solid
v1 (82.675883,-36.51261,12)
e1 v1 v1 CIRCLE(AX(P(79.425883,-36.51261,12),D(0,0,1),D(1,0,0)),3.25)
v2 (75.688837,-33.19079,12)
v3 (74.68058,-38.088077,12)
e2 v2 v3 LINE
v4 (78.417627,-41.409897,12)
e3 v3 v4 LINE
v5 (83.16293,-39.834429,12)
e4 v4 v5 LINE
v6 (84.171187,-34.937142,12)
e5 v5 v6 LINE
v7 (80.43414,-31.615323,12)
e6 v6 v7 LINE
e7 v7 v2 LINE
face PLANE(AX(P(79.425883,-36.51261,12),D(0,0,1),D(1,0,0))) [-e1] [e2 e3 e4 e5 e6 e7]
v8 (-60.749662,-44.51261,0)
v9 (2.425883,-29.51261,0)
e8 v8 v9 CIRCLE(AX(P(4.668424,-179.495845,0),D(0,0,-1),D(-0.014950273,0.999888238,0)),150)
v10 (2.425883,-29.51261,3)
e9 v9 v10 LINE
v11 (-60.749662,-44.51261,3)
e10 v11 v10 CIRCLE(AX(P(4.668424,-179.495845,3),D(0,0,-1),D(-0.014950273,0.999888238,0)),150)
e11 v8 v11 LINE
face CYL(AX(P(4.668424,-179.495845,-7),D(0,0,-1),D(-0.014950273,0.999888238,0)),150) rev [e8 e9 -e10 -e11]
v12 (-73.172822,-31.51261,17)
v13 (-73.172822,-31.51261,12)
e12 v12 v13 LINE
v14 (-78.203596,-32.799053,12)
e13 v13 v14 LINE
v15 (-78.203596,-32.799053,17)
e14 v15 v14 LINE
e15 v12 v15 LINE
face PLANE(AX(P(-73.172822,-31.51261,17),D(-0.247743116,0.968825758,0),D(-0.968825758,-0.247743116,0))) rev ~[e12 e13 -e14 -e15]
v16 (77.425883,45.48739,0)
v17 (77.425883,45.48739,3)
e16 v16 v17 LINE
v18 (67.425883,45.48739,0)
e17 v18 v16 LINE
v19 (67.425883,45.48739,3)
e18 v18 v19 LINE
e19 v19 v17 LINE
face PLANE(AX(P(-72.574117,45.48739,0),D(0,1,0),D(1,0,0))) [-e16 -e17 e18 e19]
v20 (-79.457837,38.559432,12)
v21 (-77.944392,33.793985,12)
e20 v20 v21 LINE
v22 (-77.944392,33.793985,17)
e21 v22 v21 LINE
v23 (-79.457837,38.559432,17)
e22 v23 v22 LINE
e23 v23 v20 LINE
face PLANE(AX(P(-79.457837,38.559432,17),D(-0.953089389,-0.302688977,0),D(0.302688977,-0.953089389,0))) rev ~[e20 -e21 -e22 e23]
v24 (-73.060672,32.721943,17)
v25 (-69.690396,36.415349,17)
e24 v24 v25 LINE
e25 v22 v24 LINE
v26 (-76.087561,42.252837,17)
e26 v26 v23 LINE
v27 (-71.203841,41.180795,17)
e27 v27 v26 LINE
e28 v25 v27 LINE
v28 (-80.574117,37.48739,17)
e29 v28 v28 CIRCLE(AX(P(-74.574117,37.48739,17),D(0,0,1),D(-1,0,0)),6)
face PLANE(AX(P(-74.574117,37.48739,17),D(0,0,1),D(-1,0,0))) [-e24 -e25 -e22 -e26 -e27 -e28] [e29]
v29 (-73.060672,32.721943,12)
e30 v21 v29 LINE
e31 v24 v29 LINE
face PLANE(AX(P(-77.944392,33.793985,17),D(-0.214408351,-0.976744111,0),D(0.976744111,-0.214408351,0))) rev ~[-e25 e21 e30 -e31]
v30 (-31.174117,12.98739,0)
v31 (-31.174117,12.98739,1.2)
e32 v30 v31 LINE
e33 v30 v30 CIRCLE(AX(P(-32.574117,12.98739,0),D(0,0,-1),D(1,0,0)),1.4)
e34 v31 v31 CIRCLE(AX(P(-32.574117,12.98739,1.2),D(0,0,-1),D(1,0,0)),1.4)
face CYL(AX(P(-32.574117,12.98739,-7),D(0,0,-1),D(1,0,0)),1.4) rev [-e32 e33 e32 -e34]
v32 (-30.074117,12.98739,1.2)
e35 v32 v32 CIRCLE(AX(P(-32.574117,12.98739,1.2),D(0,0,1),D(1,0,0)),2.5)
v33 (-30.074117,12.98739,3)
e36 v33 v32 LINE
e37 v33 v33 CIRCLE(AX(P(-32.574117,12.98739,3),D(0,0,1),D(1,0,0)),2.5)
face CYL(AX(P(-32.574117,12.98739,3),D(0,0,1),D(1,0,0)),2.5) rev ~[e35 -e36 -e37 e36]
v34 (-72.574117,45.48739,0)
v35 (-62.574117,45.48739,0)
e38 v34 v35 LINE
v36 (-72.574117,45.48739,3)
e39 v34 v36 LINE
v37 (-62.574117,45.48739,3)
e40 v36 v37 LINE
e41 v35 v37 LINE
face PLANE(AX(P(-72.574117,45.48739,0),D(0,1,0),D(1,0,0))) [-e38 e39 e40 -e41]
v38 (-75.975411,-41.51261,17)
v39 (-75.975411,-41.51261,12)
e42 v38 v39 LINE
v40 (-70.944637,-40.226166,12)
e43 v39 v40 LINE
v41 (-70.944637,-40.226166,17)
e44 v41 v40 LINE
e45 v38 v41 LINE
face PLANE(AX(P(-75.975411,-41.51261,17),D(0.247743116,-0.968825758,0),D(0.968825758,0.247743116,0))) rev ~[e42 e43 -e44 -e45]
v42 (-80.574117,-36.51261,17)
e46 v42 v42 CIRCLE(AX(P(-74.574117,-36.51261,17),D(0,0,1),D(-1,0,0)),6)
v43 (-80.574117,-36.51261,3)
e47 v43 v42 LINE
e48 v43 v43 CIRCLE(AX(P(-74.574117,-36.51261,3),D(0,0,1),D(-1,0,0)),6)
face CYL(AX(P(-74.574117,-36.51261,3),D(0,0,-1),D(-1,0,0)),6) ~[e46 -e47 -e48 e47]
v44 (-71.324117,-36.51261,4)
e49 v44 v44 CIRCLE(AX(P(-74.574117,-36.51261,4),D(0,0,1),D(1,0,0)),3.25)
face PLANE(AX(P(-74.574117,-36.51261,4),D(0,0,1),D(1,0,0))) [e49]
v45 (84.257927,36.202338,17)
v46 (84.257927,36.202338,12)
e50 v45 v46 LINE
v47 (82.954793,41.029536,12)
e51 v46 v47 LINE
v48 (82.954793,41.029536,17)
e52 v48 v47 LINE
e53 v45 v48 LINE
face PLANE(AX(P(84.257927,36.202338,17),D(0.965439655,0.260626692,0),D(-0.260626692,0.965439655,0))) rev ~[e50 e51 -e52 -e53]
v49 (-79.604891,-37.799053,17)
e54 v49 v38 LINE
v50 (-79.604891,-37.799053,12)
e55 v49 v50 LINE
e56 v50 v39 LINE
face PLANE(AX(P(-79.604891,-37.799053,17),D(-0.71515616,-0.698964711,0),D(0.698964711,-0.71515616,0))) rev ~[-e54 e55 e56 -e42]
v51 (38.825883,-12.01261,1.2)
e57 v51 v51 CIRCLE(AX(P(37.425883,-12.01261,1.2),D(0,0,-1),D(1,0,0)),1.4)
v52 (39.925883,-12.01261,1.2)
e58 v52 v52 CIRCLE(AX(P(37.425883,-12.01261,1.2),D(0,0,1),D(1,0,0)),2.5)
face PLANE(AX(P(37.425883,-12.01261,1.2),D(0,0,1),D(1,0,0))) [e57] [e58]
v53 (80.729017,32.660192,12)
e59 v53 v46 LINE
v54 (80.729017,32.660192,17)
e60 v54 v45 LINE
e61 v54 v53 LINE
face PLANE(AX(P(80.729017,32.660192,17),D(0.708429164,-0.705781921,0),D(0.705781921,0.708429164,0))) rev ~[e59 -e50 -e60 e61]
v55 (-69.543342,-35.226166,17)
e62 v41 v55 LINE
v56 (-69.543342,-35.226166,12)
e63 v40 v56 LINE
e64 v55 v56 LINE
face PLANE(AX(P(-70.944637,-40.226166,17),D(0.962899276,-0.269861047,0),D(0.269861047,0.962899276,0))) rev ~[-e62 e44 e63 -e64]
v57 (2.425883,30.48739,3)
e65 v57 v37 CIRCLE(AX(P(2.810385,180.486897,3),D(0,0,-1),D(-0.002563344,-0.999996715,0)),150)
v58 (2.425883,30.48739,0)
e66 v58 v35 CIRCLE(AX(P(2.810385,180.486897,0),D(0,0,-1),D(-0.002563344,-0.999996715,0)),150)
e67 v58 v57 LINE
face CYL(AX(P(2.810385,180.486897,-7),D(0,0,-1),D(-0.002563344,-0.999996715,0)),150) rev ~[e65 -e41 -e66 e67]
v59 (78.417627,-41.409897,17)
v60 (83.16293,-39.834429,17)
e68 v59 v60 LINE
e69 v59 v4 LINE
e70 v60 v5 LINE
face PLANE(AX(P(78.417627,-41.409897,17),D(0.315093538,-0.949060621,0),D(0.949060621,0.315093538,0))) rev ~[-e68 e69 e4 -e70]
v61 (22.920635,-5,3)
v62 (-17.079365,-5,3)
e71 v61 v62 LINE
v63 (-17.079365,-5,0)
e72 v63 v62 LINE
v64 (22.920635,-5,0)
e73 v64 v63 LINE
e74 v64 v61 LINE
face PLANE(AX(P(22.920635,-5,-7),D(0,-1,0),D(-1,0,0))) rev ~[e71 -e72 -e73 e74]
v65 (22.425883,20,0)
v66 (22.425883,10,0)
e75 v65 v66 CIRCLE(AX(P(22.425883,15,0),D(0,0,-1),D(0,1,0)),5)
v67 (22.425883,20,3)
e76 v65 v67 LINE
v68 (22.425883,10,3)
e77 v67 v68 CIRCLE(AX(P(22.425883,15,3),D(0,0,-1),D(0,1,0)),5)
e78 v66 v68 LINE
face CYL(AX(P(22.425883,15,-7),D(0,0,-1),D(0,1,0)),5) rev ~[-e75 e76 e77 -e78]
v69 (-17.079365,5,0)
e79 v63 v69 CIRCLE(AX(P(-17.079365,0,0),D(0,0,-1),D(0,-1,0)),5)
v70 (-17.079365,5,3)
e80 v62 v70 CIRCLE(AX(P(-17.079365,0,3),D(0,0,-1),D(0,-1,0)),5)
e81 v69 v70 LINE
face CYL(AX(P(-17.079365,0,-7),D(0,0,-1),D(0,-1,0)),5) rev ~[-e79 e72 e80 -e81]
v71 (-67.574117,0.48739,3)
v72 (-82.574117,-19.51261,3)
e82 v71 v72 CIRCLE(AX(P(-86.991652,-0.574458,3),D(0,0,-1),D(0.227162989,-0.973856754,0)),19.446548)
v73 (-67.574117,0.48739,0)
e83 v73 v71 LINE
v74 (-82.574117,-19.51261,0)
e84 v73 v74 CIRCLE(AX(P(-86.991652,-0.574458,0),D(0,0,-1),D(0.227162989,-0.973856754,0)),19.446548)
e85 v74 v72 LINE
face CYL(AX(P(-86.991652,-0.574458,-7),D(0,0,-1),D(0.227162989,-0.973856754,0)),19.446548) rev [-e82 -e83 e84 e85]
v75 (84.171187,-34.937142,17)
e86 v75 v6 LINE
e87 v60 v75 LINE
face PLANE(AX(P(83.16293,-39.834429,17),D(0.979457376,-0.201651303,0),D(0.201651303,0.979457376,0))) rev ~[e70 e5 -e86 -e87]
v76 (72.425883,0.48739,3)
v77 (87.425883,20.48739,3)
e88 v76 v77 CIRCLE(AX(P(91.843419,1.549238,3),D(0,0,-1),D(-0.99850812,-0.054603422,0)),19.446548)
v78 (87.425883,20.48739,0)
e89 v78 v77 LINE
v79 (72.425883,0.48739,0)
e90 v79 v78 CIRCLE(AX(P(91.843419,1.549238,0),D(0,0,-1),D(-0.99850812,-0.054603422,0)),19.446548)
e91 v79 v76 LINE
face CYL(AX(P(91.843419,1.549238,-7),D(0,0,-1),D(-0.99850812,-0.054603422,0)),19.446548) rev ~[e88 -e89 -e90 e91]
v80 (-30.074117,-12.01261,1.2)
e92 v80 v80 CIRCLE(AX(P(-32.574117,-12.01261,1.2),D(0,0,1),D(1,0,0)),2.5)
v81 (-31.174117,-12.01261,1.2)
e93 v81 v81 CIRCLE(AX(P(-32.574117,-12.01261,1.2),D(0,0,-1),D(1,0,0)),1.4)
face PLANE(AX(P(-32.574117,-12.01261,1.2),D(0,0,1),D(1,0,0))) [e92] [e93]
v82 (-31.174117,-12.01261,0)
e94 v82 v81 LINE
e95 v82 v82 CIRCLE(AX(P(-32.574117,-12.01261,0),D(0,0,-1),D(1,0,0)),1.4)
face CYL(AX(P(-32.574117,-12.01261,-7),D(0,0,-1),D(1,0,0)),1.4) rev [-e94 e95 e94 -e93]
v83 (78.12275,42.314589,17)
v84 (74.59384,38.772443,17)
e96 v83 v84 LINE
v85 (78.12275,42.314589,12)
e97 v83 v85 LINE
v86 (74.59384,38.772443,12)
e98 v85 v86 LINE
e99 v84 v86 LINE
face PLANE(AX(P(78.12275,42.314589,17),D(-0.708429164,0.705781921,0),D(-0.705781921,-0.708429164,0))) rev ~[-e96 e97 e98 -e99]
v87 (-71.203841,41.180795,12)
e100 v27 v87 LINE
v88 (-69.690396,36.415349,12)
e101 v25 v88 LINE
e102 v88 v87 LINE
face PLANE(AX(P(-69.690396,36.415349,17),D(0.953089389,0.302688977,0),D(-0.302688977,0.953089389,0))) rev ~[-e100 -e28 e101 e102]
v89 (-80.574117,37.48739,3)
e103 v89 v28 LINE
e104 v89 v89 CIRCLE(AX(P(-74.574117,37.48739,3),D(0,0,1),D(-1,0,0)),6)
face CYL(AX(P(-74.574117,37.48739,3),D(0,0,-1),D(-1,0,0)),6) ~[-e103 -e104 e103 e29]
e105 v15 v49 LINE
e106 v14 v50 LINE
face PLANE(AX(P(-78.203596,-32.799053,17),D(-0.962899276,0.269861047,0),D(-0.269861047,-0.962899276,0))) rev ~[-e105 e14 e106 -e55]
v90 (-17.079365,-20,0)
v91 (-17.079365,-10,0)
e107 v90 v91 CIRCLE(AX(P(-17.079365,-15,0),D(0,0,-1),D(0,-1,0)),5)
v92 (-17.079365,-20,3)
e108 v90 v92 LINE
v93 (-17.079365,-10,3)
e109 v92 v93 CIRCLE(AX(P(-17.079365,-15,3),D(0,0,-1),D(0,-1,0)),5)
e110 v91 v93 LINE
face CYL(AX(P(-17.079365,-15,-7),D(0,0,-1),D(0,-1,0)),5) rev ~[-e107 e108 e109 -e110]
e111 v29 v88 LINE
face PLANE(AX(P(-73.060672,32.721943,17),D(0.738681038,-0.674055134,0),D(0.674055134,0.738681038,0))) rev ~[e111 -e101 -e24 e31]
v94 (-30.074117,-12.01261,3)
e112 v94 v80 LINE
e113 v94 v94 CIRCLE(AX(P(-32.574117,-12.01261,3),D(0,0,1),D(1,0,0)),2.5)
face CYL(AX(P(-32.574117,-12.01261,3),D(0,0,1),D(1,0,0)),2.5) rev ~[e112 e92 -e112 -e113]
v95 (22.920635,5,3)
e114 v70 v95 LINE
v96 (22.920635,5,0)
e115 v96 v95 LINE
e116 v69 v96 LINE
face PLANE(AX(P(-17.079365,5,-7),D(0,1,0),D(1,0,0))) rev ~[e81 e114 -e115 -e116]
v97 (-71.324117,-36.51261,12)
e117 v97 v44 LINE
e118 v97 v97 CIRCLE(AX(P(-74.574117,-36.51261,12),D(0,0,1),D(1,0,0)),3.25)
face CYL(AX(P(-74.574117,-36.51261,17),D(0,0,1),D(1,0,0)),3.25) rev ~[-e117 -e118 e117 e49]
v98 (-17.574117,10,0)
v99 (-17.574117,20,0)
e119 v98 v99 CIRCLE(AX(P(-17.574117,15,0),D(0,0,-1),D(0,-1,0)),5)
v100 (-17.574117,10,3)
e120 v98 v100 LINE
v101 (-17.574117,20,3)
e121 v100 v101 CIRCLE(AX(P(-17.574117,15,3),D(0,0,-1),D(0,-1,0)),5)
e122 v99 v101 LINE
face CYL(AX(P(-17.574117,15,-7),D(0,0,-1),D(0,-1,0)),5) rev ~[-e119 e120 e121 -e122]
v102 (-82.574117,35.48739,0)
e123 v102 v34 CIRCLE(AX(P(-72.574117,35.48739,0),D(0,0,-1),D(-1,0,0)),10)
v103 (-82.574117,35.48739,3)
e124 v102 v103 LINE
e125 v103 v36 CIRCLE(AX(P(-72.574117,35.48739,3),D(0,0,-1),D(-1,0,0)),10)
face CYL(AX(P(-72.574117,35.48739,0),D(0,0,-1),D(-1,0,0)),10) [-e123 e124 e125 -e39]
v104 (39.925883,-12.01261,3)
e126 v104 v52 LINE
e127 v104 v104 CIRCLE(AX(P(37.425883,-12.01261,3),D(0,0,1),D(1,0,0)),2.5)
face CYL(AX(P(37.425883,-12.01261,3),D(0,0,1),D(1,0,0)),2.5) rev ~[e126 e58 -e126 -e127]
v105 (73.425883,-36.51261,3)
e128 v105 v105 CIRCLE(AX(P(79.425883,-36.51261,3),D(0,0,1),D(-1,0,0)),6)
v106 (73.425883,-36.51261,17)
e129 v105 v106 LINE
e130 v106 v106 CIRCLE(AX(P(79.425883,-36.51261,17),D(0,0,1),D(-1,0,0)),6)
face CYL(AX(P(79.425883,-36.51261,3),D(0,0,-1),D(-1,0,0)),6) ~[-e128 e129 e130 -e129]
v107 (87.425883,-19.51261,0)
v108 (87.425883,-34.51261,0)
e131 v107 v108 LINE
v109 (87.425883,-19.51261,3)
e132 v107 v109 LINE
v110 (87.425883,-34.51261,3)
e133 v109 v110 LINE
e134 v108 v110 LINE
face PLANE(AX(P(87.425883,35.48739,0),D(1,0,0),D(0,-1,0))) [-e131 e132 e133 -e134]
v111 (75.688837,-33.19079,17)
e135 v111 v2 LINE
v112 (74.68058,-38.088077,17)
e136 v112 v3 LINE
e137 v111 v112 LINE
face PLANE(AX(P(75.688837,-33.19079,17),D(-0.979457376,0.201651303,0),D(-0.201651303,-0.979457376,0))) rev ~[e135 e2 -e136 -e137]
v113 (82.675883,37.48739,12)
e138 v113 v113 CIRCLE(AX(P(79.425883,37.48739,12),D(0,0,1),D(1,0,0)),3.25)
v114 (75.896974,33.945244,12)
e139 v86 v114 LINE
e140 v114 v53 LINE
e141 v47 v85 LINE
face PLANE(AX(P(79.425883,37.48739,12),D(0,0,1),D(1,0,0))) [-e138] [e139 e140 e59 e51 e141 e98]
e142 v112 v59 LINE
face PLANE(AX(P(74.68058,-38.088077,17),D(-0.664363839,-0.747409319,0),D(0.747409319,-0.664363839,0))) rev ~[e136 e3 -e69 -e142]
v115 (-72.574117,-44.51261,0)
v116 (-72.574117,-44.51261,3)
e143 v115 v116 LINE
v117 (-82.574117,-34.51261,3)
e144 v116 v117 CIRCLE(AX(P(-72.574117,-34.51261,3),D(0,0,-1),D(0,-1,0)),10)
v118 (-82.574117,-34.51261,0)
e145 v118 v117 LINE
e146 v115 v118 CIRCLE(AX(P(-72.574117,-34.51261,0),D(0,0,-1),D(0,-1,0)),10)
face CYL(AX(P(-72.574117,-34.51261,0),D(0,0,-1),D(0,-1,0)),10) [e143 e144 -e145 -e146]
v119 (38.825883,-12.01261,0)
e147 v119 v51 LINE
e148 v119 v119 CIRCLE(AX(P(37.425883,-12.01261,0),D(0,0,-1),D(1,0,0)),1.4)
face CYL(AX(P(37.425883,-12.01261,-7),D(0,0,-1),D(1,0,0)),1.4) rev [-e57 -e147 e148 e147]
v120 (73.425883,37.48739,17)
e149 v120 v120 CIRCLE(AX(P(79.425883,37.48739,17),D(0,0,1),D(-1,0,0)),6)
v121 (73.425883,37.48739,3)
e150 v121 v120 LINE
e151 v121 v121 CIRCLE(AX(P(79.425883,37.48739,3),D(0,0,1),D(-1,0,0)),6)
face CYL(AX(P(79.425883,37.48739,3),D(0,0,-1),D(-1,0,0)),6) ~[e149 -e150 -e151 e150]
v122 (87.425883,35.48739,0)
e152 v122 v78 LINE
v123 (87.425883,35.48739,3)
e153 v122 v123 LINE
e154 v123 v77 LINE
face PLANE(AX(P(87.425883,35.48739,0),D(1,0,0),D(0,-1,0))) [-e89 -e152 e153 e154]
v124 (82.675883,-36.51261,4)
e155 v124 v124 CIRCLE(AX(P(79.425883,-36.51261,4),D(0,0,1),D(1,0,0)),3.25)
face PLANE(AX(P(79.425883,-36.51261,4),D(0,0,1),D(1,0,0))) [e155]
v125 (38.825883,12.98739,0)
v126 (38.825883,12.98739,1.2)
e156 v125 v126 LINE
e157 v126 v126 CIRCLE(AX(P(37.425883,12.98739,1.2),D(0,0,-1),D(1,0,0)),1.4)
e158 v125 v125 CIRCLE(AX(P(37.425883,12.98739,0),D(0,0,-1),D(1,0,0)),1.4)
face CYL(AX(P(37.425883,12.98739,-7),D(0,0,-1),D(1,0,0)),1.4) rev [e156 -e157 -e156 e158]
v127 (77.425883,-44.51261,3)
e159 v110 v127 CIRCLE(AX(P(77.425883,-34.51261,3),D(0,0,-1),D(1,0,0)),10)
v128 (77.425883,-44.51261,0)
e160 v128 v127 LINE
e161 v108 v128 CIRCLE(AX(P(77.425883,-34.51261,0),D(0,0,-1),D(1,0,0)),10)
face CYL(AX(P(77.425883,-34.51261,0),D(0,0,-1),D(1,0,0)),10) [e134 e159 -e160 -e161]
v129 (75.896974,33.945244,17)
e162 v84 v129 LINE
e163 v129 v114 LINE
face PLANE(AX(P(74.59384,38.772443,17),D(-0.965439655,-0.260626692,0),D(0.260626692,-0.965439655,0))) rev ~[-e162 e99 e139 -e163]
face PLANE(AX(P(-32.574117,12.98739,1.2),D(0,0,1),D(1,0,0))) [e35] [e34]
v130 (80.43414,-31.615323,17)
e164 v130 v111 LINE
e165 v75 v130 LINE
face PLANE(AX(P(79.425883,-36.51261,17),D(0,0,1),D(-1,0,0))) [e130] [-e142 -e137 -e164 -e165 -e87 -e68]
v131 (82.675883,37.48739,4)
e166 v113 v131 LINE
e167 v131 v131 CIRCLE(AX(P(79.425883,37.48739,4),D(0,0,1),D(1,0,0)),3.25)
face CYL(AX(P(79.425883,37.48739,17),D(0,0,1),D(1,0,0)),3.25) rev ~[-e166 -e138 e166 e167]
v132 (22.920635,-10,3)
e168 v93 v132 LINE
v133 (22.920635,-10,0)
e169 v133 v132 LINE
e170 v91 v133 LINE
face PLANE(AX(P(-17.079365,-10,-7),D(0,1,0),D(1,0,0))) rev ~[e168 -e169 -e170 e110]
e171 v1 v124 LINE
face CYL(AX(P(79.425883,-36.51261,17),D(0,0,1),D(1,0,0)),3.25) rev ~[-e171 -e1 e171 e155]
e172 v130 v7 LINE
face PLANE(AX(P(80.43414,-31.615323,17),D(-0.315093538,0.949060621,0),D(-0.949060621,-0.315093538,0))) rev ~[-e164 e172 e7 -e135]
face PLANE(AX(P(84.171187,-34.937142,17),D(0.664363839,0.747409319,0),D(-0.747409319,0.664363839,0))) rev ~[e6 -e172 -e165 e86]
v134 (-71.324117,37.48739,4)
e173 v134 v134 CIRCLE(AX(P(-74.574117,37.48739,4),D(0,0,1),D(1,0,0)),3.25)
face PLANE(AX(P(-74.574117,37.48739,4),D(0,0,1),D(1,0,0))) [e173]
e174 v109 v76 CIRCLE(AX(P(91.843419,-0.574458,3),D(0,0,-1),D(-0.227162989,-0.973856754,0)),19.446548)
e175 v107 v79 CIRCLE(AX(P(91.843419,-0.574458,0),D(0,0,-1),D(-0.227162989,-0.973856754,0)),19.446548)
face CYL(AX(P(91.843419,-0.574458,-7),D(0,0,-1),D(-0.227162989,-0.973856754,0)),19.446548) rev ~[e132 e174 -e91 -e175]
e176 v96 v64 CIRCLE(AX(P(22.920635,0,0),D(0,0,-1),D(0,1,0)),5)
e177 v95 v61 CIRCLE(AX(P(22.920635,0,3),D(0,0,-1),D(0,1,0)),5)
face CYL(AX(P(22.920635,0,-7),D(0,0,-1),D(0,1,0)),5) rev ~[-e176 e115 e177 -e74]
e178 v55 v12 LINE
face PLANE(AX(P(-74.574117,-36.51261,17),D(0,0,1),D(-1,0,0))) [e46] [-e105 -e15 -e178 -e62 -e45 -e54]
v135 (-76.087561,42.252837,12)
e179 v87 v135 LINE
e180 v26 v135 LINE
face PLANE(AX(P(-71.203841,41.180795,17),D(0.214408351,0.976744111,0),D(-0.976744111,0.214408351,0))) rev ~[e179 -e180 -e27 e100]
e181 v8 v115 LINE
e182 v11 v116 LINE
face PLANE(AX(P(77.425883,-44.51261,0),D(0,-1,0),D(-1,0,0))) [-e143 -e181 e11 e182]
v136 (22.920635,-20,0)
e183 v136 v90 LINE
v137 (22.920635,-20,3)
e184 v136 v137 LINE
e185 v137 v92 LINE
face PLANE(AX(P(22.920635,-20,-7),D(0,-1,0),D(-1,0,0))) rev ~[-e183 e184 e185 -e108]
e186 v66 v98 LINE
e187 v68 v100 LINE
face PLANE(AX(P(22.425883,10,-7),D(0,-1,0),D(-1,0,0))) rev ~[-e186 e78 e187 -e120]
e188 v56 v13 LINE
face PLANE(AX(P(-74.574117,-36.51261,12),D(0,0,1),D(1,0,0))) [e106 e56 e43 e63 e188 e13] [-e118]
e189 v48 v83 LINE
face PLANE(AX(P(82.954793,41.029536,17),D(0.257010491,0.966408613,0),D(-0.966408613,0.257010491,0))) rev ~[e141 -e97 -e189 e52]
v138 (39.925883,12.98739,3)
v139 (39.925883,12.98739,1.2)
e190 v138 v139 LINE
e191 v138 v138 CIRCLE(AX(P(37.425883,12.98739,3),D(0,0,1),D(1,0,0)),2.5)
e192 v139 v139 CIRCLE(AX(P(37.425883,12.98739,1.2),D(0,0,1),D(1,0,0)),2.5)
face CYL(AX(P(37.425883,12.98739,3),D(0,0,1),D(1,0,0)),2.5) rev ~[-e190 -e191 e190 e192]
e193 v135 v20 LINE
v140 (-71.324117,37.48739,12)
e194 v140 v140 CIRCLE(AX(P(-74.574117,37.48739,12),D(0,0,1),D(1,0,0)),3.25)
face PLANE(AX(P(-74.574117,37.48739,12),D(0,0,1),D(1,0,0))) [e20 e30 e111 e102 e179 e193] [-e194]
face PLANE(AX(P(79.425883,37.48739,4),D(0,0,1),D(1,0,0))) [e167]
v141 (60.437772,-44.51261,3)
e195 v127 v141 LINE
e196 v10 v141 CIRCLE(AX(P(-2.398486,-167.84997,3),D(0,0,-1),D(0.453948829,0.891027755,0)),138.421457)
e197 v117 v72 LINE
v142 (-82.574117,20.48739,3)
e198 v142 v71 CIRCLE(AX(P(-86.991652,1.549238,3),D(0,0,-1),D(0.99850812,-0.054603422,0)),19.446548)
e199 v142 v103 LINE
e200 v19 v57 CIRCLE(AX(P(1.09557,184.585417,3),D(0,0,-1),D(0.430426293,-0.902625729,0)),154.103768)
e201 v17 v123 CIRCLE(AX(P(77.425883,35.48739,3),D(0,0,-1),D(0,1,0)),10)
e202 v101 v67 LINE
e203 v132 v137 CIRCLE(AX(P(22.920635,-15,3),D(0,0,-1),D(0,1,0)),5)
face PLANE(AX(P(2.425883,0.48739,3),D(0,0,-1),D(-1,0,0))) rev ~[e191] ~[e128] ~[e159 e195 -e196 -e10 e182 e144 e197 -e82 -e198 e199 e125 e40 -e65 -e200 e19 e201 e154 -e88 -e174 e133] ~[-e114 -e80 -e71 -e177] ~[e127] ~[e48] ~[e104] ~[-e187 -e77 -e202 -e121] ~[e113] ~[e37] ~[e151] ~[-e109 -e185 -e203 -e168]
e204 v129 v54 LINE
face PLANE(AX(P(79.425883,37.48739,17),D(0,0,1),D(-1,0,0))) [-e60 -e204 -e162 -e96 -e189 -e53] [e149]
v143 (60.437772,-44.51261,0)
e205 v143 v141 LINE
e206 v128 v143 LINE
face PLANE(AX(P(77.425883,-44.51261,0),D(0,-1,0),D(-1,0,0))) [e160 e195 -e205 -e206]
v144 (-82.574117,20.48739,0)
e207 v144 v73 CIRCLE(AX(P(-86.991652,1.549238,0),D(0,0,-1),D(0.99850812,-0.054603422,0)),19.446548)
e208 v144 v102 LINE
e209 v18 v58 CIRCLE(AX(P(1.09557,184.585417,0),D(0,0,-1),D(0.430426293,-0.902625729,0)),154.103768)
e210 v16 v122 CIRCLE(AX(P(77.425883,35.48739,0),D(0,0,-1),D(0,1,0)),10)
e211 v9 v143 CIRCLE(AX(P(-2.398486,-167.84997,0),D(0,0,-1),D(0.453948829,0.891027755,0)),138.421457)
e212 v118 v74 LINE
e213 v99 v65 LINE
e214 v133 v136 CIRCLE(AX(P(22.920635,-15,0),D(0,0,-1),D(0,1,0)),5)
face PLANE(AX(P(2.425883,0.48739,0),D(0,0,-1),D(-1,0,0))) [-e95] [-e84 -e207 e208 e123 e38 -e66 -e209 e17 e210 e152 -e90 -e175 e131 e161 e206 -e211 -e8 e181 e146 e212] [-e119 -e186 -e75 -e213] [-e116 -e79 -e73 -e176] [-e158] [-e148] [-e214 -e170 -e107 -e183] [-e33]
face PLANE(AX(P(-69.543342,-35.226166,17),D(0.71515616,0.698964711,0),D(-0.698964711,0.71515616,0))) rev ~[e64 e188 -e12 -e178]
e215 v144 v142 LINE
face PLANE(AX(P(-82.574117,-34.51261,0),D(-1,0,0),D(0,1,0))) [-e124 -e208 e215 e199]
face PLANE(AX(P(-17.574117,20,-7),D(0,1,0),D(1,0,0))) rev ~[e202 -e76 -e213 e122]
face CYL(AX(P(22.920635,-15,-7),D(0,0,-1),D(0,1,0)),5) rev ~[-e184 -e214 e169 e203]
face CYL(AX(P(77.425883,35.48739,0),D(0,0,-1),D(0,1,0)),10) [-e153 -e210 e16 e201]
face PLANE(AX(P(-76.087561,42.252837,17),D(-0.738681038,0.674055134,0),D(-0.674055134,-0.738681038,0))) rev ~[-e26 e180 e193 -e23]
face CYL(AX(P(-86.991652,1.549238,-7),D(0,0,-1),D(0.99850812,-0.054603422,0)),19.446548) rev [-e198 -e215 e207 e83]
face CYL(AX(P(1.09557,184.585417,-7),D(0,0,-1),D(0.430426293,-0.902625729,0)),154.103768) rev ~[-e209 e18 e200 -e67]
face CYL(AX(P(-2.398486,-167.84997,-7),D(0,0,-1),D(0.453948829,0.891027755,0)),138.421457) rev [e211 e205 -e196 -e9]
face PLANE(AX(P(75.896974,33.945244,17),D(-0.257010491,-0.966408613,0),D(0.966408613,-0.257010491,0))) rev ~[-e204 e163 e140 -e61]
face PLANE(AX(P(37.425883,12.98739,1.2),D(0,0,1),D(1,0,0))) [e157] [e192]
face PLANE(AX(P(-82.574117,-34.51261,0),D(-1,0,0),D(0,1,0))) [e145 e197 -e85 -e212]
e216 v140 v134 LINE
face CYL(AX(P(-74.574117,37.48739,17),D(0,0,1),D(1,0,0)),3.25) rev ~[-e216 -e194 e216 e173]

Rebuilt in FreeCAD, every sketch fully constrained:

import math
import FreeCAD as App
import Part
import Sketcher
Q = App.Units.Quantity

doc = App.newDocument("Part")
body = doc.addObject("PartDesign::Body", "Body")

# Sketch on XY plane
sketch1 = body.newObject("Sketcher::SketchObject", "Sketch")
sketch1.AttachmentSupport = (doc.getObject("XY_Plane"), [""])
sketch1.MapMode = "FlatFace"
sketch1.addGeometry([
    Part.LineSegment(App.Vector(77.425883, 45.48739, 0), App.Vector(-72.574117, 45.48739, 0)),  # 0
    Part.ArcOfCircle(Part.Circle(App.Vector(-72.574117, 35.48739, 0), App.Vector(0, 0, 1), 10), math.radians(90), math.radians(180)),  # 1
    Part.LineSegment(App.Vector(-82.574117, 35.48739, 0), App.Vector(-82.574117, -34.51261, 0)),  # 2
    Part.ArcOfCircle(Part.Circle(App.Vector(-72.574117, -34.51261, 0), App.Vector(0, 0, 1), 10), math.radians(180), math.radians(270)),  # 3
    Part.LineSegment(App.Vector(-72.574117, -44.51261, 0), App.Vector(77.425883, -44.51261, 0)),  # 4
    Part.ArcOfCircle(Part.Circle(App.Vector(77.425883, -34.51261, 0), App.Vector(0, 0, 1), 10), math.radians(-90), math.radians(0)),  # 5
    Part.LineSegment(App.Vector(87.425883, -34.51261, 0), App.Vector(87.425883, 35.48739, 0)),  # 6
    Part.ArcOfCircle(Part.Circle(App.Vector(77.425883, 35.48739, 0), App.Vector(0, 0, 1), 10), math.radians(0), math.radians(90)),  # 7
], False)
sketch1.addConstraint([
    Sketcher.Constraint("Tangent", 0, 2, 1, 1),
    Sketcher.Constraint("Tangent", 1, 2, 2, 1),
    Sketcher.Constraint("Tangent", 2, 2, 3, 1),
    Sketcher.Constraint("Tangent", 3, 2, 4, 1),
    Sketcher.Constraint("Tangent", 4, 2, 5, 1),
    Sketcher.Constraint("Tangent", 5, 2, 6, 1),
    Sketcher.Constraint("Tangent", 6, 2, 7, 1),
    Sketcher.Constraint("Tangent", 7, 2, 0, 1),
    Sketcher.Constraint("Horizontal", 0),
    Sketcher.Constraint("Vertical", 2),
    Sketcher.Constraint("Horizontal", 4),
    Sketcher.Constraint("Vertical", 6),
    Sketcher.Constraint("Equal", 1, 3),
    Sketcher.Constraint("Equal", 3, 5),
    Sketcher.Constraint("Equal", 5, 7),
    Sketcher.Constraint("Radius", 1, Q("10 mm")),
    Sketcher.Constraint("DistanceX", 0, 2, 0, 1, Q("150 mm")),
    Sketcher.Constraint("DistanceY", 2, 2, 2, 1, Q("70 mm")),
    Sketcher.Constraint("DistanceY", -1, 1, 1, 3, Q("35.48739 mm")),
    Sketcher.Constraint("DistanceX", 1, 3, -1, 1, Q("72.574117 mm")),
])
pad1 = body.newObject("PartDesign::Pad", "Pad")
pad1.Profile = sketch1
pad1.Length = 3

# Sketch on XY plane
sketch2 = body.newObject("Sketcher::SketchObject", "Sketch001")
sketch2.AttachmentSupport = (doc.getObject("XY_Plane"), [""])
sketch2.MapMode = "FlatFace"
sketch2.AttachmentOffset = App.Placement(App.Vector(0, 0, 3), App.Rotation())
sketch2.addGeometry([
    Part.Circle(App.Vector(-32.574117, 12.98739, 0), App.Vector(0, 0, 1), 1.4),  # 0
    Part.Circle(App.Vector(-32.574117, -12.01261, 0), App.Vector(0, 0, 1), 1.4),  # 1
    Part.Circle(App.Vector(37.425883, 12.98739, 0), App.Vector(0, 0, 1), 1.4),  # 2
    Part.Circle(App.Vector(37.425883, -12.01261, 0), App.Vector(0, 0, 1), 1.4),  # 3
    Part.LineSegment(App.Vector(-60.749662, -44.51261, 0), App.Vector(60.437772, -44.51261, 0)),  # 4
    Part.ArcOfCircle(Part.Circle(App.Vector(-2.398486, -167.84997, 0), App.Vector(0, 0, 1), 138.421457), math.radians(63.00268), math.radians(88.00268)),  # 5
    Part.ArcOfCircle(Part.Circle(App.Vector(4.668424, -179.495845, 0), App.Vector(0, 0, 1), 150), math.radians(90.856619), math.radians(115.856619)),  # 6
    Part.LineSegment(App.Vector(67.425883, 45.48739, 0), App.Vector(-62.574117, 45.48739, 0)),  # 7
    Part.ArcOfCircle(Part.Circle(App.Vector(2.810385, 180.486897, 0), App.Vector(0, 0, 1), 150), math.radians(-115.842365), math.radians(-90.146869)),  # 8
    Part.ArcOfCircle(Part.Circle(App.Vector(1.09557, 184.585417, 0), App.Vector(0, 0, 1), 154.103768), math.radians(-89.505383), math.radians(-64.505383)),  # 9
    Part.LineSegment(App.Vector(87.425883, -19.51261, 0), App.Vector(87.425883, 20.48739, 0)),  # 10
    Part.ArcOfCircle(Part.Circle(App.Vector(91.843419, 1.549238, 0), App.Vector(0, 0, 1), 19.446548), math.radians(103.130102), math.radians(183.130102)),  # 11
    Part.ArcOfCircle(Part.Circle(App.Vector(91.843419, -0.574458, 0), App.Vector(0, 0, 1), 19.446548), math.radians(176.869898), math.radians(256.869898)),  # 12
    Part.LineSegment(App.Vector(-82.574117, 20.48739, 0), App.Vector(-82.574117, -19.51261, 0)),  # 13
    Part.ArcOfCircle(Part.Circle(App.Vector(-86.991652, -0.574458, 0), App.Vector(0, 0, 1), 19.446548), math.radians(-76.869898), math.radians(3.130102)),  # 14
    Part.ArcOfCircle(Part.Circle(App.Vector(-86.991652, 1.549238, 0), App.Vector(0, 0, 1), 19.446548), math.radians(-3.130102), math.radians(76.869898)),  # 15
    Part.LineSegment(App.Vector(22.425883, 20, 0), App.Vector(-17.574117, 20, 0)),  # 16
    Part.ArcOfCircle(Part.Circle(App.Vector(-17.574117, 15, 0), App.Vector(0, 0, 1), 5), math.radians(90), math.radians(270)),  # 17
    Part.LineSegment(App.Vector(-17.574117, 10, 0), App.Vector(22.425883, 10, 0)),  # 18
    Part.ArcOfCircle(Part.Circle(App.Vector(22.425883, 15, 0), App.Vector(0, 0, 1), 5), math.radians(-90), math.radians(90)),  # 19
    Part.LineSegment(App.Vector(22.920635, 5, 0), App.Vector(-17.079365, 5, 0)),  # 20
    Part.ArcOfCircle(Part.Circle(App.Vector(-17.079365, 0, 0), App.Vector(0, 0, 1), 5), math.radians(90), math.radians(270)),  # 21
    Part.LineSegment(App.Vector(-17.079365, -5, 0), App.Vector(22.920635, -5, 0)),  # 22
    Part.ArcOfCircle(Part.Circle(App.Vector(22.920635, 0, 0), App.Vector(0, 0, 1), 5), math.radians(-90), math.radians(90)),  # 23
    Part.LineSegment(App.Vector(22.920635, -10, 0), App.Vector(-17.079365, -10, 0)),  # 24
    Part.ArcOfCircle(Part.Circle(App.Vector(-17.079365, -15, 0), App.Vector(0, 0, 1), 5), math.radians(90), math.radians(270)),  # 25
    Part.LineSegment(App.Vector(-17.079365, -20, 0), App.Vector(22.920635, -20, 0)),  # 26
    Part.ArcOfCircle(Part.Circle(App.Vector(22.920635, -15, 0), App.Vector(0, 0, 1), 5), math.radians(-90), math.radians(90)),  # 27
], False)
sketch2.addConstraint([
    Sketcher.Constraint("Coincident", 4, 2, 5, 1),
    Sketcher.Constraint("Coincident", 5, 2, 6, 1),
    Sketcher.Constraint("Coincident", 6, 2, 4, 1),
    Sketcher.Constraint("Coincident", 7, 2, 8, 1),
    Sketcher.Constraint("Coincident", 8, 2, 9, 1),
    Sketcher.Constraint("Coincident", 9, 2, 7, 1),
    Sketcher.Constraint("Coincident", 10, 2, 11, 1),
    Sketcher.Constraint("Coincident", 11, 2, 12, 1),
    Sketcher.Constraint("Coincident", 12, 2, 10, 1),
    Sketcher.Constraint("Coincident", 13, 2, 14, 1),
    Sketcher.Constraint("Coincident", 14, 2, 15, 1),
    Sketcher.Constraint("Coincident", 15, 2, 13, 1),
    Sketcher.Constraint("Tangent", 16, 2, 17, 1),
    Sketcher.Constraint("Tangent", 17, 2, 18, 1),
    Sketcher.Constraint("Tangent", 18, 2, 19, 1),
    Sketcher.Constraint("Tangent", 19, 2, 16, 1),
    Sketcher.Constraint("Tangent", 20, 2, 21, 1),
    Sketcher.Constraint("Tangent", 21, 2, 22, 1),
    Sketcher.Constraint("Tangent", 22, 2, 23, 1),
    Sketcher.Constraint("Tangent", 23, 2, 20, 1),
    Sketcher.Constraint("Tangent", 24, 2, 25, 1),
    Sketcher.Constraint("Tangent", 25, 2, 26, 1),
    Sketcher.Constraint("Tangent", 26, 2, 27, 1),
    Sketcher.Constraint("Tangent", 27, 2, 24, 1),
    Sketcher.Constraint("Horizontal", 4),
    Sketcher.Constraint("Horizontal", 7),
    Sketcher.Constraint("Vertical", 10),
    Sketcher.Constraint("Vertical", 13),
    Sketcher.Constraint("Horizontal", 16),
    Sketcher.Constraint("Horizontal", 18),
    Sketcher.Constraint("Horizontal", 20),
    Sketcher.Constraint("Horizontal", 22),
    Sketcher.Constraint("Horizontal", 24),
    Sketcher.Constraint("Horizontal", 26),
    Sketcher.Constraint("Equal", 0, 1),
    Sketcher.Constraint("Equal", 1, 2),
    Sketcher.Constraint("Equal", 2, 3),
    Sketcher.Constraint("Equal", 6, 8),
    Sketcher.Constraint("Equal", 11, 12),
    Sketcher.Constraint("Equal", 12, 14),
    Sketcher.Constraint("Equal", 14, 15),
    Sketcher.Constraint("Equal", 19, 21),
    Sketcher.Constraint("Equal", 23, 25),
    Sketcher.Constraint("PointOnObject", 21, 3, -1),
    Sketcher.Constraint("Horizontal", 0, 3, 2, 3),
    Sketcher.Constraint("Horizontal", 1, 3, 3, 3),
    Sketcher.Constraint("Horizontal", 12, 3, 14, 3),
    Sketcher.Constraint("Horizontal", 11, 3, 15, 3),
    Sketcher.Constraint("Horizontal", 12, 2, 13, 2),
    Sketcher.Constraint("Horizontal", 11, 2, 14, 2),
    Sketcher.Constraint("Vertical", 0, 3, 1, 3),
    Sketcher.Constraint("Vertical", 2, 3, 3, 3),
    Sketcher.Constraint("Vertical", 11, 3, 12, 3),
    Sketcher.Constraint("Vertical", 21, 3, 25, 3),
    Sketcher.Constraint("Vertical", 23, 3, 27, 3),
    Sketcher.Constraint("Vertical", 5, 2, 8, 2),
    Sketcher.Constraint("Equal", 18, 20),
    Sketcher.Constraint("Equal", 26, 10),
    Sketcher.Constraint("Radius", 6, Q("150 mm")),
    Sketcher.Constraint("Radius", 17, Q("5 mm")),
    Sketcher.Constraint("Diameter", 0, Q("2.8 mm")),
    Sketcher.Constraint("DistanceX", 7, 2, 7, 1, Q("130 mm")),
    Sketcher.Constraint("DistanceX", 16, 2, 16, 1, Q("40 mm")),
    Sketcher.Constraint("DistanceY", -1, 1, 17, 3, Q("15 mm")),
    Sketcher.Constraint("DistanceY", 25, 3, -1, 1, Q("15 mm")),
    Sketcher.Constraint("DistanceY", 1, 3, 0, 3, Q("25 mm")),
    Sketcher.Constraint("DistanceX", 0, 3, 2, 3, Q("70 mm")),
    Sketcher.Constraint("DistanceX", 0, 3, 17, 3, Q("15 mm")),
    Sketcher.Constraint("DistanceX", 5, 2, 3, 3, Q("35 mm")),
    Sketcher.Constraint("DistanceX", 7, 2, 0, 3, Q("30 mm")),
    Sketcher.Constraint("DistanceX", 9, 2, 10, 2, Q("20 mm")),
    Sketcher.Constraint("DistanceY", 10, 2, 9, 2, Q("25 mm")),
    Sketcher.Constraint("DistanceX", 11, 2, 10, 2, Q("15 mm")),
    Sketcher.Constraint("DistanceY", 4, 2, 12, 2, Q("25 mm")),
    Sketcher.Constraint("DistanceX", 13, 2, 1, 3, Q("50 mm")),
    Sketcher.Constraint("DistanceY", 4, 2, 3, 3, Q("32.5 mm")),
    Sketcher.Constraint("DistanceY", 5, 2, 3, 3, Q("17.5 mm")),
    Sketcher.Constraint("DistanceY", 0, 3, 8, 2, Q("17.5 mm")),
    Sketcher.Constraint("Radius", 9, Q("154.103768 mm")),
    Sketcher.Constraint("Radius", 5, Q("138.421457 mm")),
    Sketcher.Constraint("Radius", 11, Q("19.446548 mm")),
    Sketcher.Constraint("DistanceX", 4, 1, 4, 2, Q("121.187434 mm")),
    Sketcher.Constraint("DistanceY", -1, 1, 0, 3, Q("12.98739 mm")),
    Sketcher.Constraint("DistanceY", 5, 3, -1, 1, Q("167.84997 mm")),
    Sketcher.Constraint("DistanceX", -1, 1, 9, 3, Q("1.09557 mm")),
    Sketcher.Constraint("DistanceX", 17, 3, 21, 3, Q("0.494752 mm")),
])
pocket1 = body.newObject("PartDesign::Pocket", "Pocket")
pocket1.Profile = sketch2
pocket1.Type = "ThroughAll"
pocket1.Midplane = True

# Sketch on XY plane
sketch3 = body.newObject("Sketcher::SketchObject", "Sketch002")
sketch3.AttachmentSupport = (doc.getObject("XY_Plane"), [""])
sketch3.MapMode = "FlatFace"
sketch3.AttachmentOffset = App.Placement(App.Vector(0, 0, 3), App.Rotation())
sketch3.addGeometry([
    Part.Circle(App.Vector(-32.574117, 12.98739, 0), App.Vector(0, 0, 1), 2.5),
    Part.Circle(App.Vector(37.425883, 12.98739, 0), App.Vector(0, 0, 1), 2.5),
    Part.Circle(App.Vector(37.425883, -12.01261, 0), App.Vector(0, 0, 1), 2.5),
    Part.Circle(App.Vector(-32.574117, -12.01261, 0), App.Vector(0, 0, 1), 2.5),
], False)
sketch3.addConstraint([
    Sketcher.Constraint("Equal", 0, 1),
    Sketcher.Constraint("Equal", 1, 2),
    Sketcher.Constraint("Equal", 2, 3),
    Sketcher.Constraint("Horizontal", 0, 3, 1, 3),
    Sketcher.Constraint("Horizontal", 2, 3, 3, 3),
    Sketcher.Constraint("Vertical", 1, 3, 2, 3),
    Sketcher.Constraint("Vertical", 0, 3, 3, 3),
    Sketcher.Constraint("Diameter", 0, Q("5 mm")),
    Sketcher.Constraint("DistanceX", 0, 3, 1, 3, Q("70 mm")),
    Sketcher.Constraint("DistanceY", 2, 3, 1, 3, Q("25 mm")),
    Sketcher.Constraint("DistanceY", -1, 1, 0, 3, Q("12.98739 mm")),
    Sketcher.Constraint("DistanceX", 0, 3, -1, 1, Q("32.574117 mm")),
])
pocket2 = body.newObject("PartDesign::Pocket", "Pocket001")
pocket2.Profile = sketch3
pocket2.Length = 1.8

# Sketch on XY plane
sketch4 = body.newObject("Sketcher::SketchObject", "Sketch003")
sketch4.AttachmentSupport = (doc.getObject("XY_Plane"), [""])
sketch4.MapMode = "FlatFace"
sketch4.AttachmentOffset = App.Placement(App.Vector(0, 0, 3), App.Rotation())
sketch4.addGeometry([
    Part.Circle(App.Vector(-74.574117, 37.48739, 0), App.Vector(0, 0, 1), 6),
    Part.Circle(App.Vector(-74.574117, -36.51261, 0), App.Vector(0, 0, 1), 6),
    Part.Circle(App.Vector(79.425883, 37.48739, 0), App.Vector(0, 0, 1), 6),
    Part.Circle(App.Vector(79.425883, -36.51261, 0), App.Vector(0, 0, 1), 6),
], False)
sketch4.addConstraint([
    Sketcher.Constraint("Equal", 0, 1),
    Sketcher.Constraint("Equal", 1, 2),
    Sketcher.Constraint("Equal", 2, 3),
    Sketcher.Constraint("Horizontal", 0, 3, 2, 3),
    Sketcher.Constraint("Horizontal", 1, 3, 3, 3),
    Sketcher.Constraint("Vertical", 0, 3, 1, 3),
    Sketcher.Constraint("Vertical", 2, 3, 3, 3),
    Sketcher.Constraint("Diameter", 0, Q("12 mm")),
    Sketcher.Constraint("DistanceY", 1, 3, 0, 3, Q("74 mm")),
    Sketcher.Constraint("DistanceX", 0, 3, 2, 3, Q("154 mm")),
    Sketcher.Constraint("DistanceY", -1, 1, 0, 3, Q("37.48739 mm")),
    Sketcher.Constraint("DistanceX", 0, 3, -1, 1, Q("74.574117 mm")),
])
pad2 = body.newObject("PartDesign::Pad", "Pad001")
pad2.Profile = sketch4
pad2.Length = 14

# Sketch on XY plane
sketch5 = body.newObject("Sketcher::SketchObject", "Sketch004")
sketch5.AttachmentSupport = (doc.getObject("XY_Plane"), [""])
sketch5.MapMode = "FlatFace"
sketch5.AttachmentOffset = App.Placement(App.Vector(0, 0, 17), App.Rotation())
sketch5.addGeometry([
    Part.LineSegment(App.Vector(-70.944637, -40.226166, 0), App.Vector(-69.543342, -35.226166, 0)),  # 0
    Part.LineSegment(App.Vector(-69.543342, -35.226166, 0), App.Vector(-73.172822, -31.51261, 0)),  # 1
    Part.LineSegment(App.Vector(-73.172822, -31.51261, 0), App.Vector(-78.203596, -32.799053, 0)),  # 2
    Part.LineSegment(App.Vector(-78.203596, -32.799053, 0), App.Vector(-79.604891, -37.799053, 0)),  # 3
    Part.LineSegment(App.Vector(-79.604891, -37.799053, 0), App.Vector(-75.975411, -41.51261, 0)),  # 4
    Part.LineSegment(App.Vector(-75.975411, -41.51261, 0), App.Vector(-70.944637, -40.226166, 0)),  # 5
], False)
sketch5.addConstraint([
    Sketcher.Constraint("Coincident", 0, 2, 1, 1),
    Sketcher.Constraint("Coincident", 1, 2, 2, 1),
    Sketcher.Constraint("Coincident", 2, 2, 3, 1),
    Sketcher.Constraint("Coincident", 3, 2, 4, 1),
    Sketcher.Constraint("Coincident", 4, 2, 5, 1),
    Sketcher.Constraint("Coincident", 5, 2, 0, 1),
    Sketcher.Constraint("Parallel", 0, 3),
    Sketcher.Constraint("Parallel", 1, 4),
    Sketcher.Constraint("Parallel", 2, 5),
    Sketcher.Constraint("Equal", 0, 1),
    Sketcher.Constraint("Equal", 1, 2),
    Sketcher.Constraint("Equal", 2, 3),
    Sketcher.Constraint("DistanceY", 3, 2, 2, 2, Q("5 mm")),
    Sketcher.Constraint("DistanceY", 4, 2, 1, 2, Q("10 mm")),
    Sketcher.Constraint("Distance", 0, Q("5.192651 mm")),
    Sketcher.Constraint("DistanceY", 1, 2, -1, 1, Q("31.51261 mm")),
    Sketcher.Constraint("DistanceX", 3, 2, -1, 1, Q("79.604891 mm")),
    Sketcher.Constraint("DistanceX", 4, 2, -1, 1, Q("75.975411 mm")),
])
pocket3 = body.newObject("PartDesign::Pocket", "Pocket002")
pocket3.Profile = sketch5
pocket3.Length = 5

# Sketch on XY plane
sketch6 = body.newObject("Sketcher::SketchObject", "Sketch005")
sketch6.AttachmentSupport = (doc.getObject("XY_Plane"), [""])
sketch6.MapMode = "FlatFace"
sketch6.AttachmentOffset = App.Placement(App.Vector(0, 0, 17), App.Rotation())
sketch6.addGeometry([
    Part.LineSegment(App.Vector(-73.060672, 32.721943, 0), App.Vector(-69.690396, 36.415349, 0)),  # 0
    Part.LineSegment(App.Vector(-69.690396, 36.415349, 0), App.Vector(-71.203841, 41.180795, 0)),  # 1
    Part.LineSegment(App.Vector(-71.203841, 41.180795, 0), App.Vector(-76.087561, 42.252837, 0)),  # 2
    Part.LineSegment(App.Vector(-76.087561, 42.252837, 0), App.Vector(-79.457837, 38.559432, 0)),  # 3
    Part.LineSegment(App.Vector(-79.457837, 38.559432, 0), App.Vector(-77.944392, 33.793985, 0)),  # 4
    Part.LineSegment(App.Vector(-77.944392, 33.793985, 0), App.Vector(-73.060672, 32.721943, 0)),  # 5
], False)
sketch6.addConstraint([
    Sketcher.Constraint("Coincident", 0, 2, 1, 1),
    Sketcher.Constraint("Coincident", 1, 2, 2, 1),
    Sketcher.Constraint("Coincident", 2, 2, 3, 1),
    Sketcher.Constraint("Coincident", 3, 2, 4, 1),
    Sketcher.Constraint("Coincident", 4, 2, 5, 1),
    Sketcher.Constraint("Coincident", 5, 2, 0, 1),
    Sketcher.Constraint("Parallel", 0, 3),
    Sketcher.Constraint("Parallel", 1, 4),
    Sketcher.Constraint("Parallel", 2, 5),
    Sketcher.Constraint("Equal", 0, 1),
    Sketcher.Constraint("Equal", 1, 2),
    Sketcher.Constraint("Equal", 2, 3),
    Sketcher.Constraint("Distance", 0, Q("5 mm")),
    Sketcher.Constraint("DistanceY", -1, 1, 0, 2, Q("36.415349 mm")),
    Sketcher.Constraint("DistanceX", 1, 2, -1, 1, Q("71.203841 mm")),
    Sketcher.Constraint("DistanceX", 2, 2, -1, 1, Q("76.087561 mm")),
    Sketcher.Constraint("DistanceX", 5, 2, -1, 1, Q("73.060672 mm")),
    Sketcher.Constraint("DistanceY", 0, 2, 2, 2, Q("5.837489 mm")),
])
pocket4 = body.newObject("PartDesign::Pocket", "Pocket003")
pocket4.Profile = sketch6
pocket4.Length = 5

# Sketch on XY plane
sketch7 = body.newObject("Sketcher::SketchObject", "Sketch006")
sketch7.AttachmentSupport = (doc.getObject("XY_Plane"), [""])
sketch7.MapMode = "FlatFace"
sketch7.AttachmentOffset = App.Placement(App.Vector(0, 0, 17), App.Rotation())
sketch7.addGeometry([
    Part.LineSegment(App.Vector(80.729017, 32.660192, 0), App.Vector(84.257927, 36.202338, 0)),  # 0
    Part.LineSegment(App.Vector(84.257927, 36.202338, 0), App.Vector(82.954793, 41.029536, 0)),  # 1
    Part.LineSegment(App.Vector(82.954793, 41.029536, 0), App.Vector(78.12275, 42.314589, 0)),  # 2
    Part.LineSegment(App.Vector(78.12275, 42.314589, 0), App.Vector(74.59384, 38.772443, 0)),  # 3
    Part.LineSegment(App.Vector(74.59384, 38.772443, 0), App.Vector(75.896974, 33.945244, 0)),  # 4
    Part.LineSegment(App.Vector(75.896974, 33.945244, 0), App.Vector(80.729017, 32.660192, 0)),  # 5
], False)
sketch7.addConstraint([
    Sketcher.Constraint("Coincident", 0, 2, 1, 1),
    Sketcher.Constraint("Coincident", 1, 2, 2, 1),
    Sketcher.Constraint("Coincident", 2, 2, 3, 1),
    Sketcher.Constraint("Coincident", 3, 2, 4, 1),
    Sketcher.Constraint("Coincident", 4, 2, 5, 1),
    Sketcher.Constraint("Coincident", 5, 2, 0, 1),
    Sketcher.Constraint("Parallel", 0, 3),
    Sketcher.Constraint("Parallel", 1, 4),
    Sketcher.Constraint("Parallel", 2, 5),
    Sketcher.Constraint("Equal", 0, 1),
    Sketcher.Constraint("Equal", 1, 2),
    Sketcher.Constraint("Equal", 2, 3),
    Sketcher.Constraint("Distance", 0, Q("5 mm")),
    Sketcher.Constraint("DistanceY", 0, 2, 1, 2, Q("4.827198 mm")),
    Sketcher.Constraint("DistanceX", -1, 1, 2, 2, Q("78.12275 mm")),
    Sketcher.Constraint("DistanceY", -1, 1, 2, 2, Q("42.314589 mm")),
    Sketcher.Constraint("DistanceX", -1, 1, 3, 2, Q("74.59384 mm")),
    Sketcher.Constraint("DistanceY", 0, 2, 2, 2, Q("6.112251 mm")),
])
pocket5 = body.newObject("PartDesign::Pocket", "Pocket004")
pocket5.Profile = sketch7
pocket5.Length = 5

# Sketch on XY plane
sketch8 = body.newObject("Sketcher::SketchObject", "Sketch007")
sketch8.AttachmentSupport = (doc.getObject("XY_Plane"), [""])
sketch8.MapMode = "FlatFace"
sketch8.AttachmentOffset = App.Placement(App.Vector(0, 0, 17), App.Rotation())
sketch8.addGeometry([
    Part.LineSegment(App.Vector(83.16293, -39.834429, 0), App.Vector(84.171187, -34.937142, 0)),  # 0
    Part.LineSegment(App.Vector(84.171187, -34.937142, 0), App.Vector(80.43414, -31.615323, 0)),  # 1
    Part.LineSegment(App.Vector(80.43414, -31.615323, 0), App.Vector(75.688837, -33.19079, 0)),  # 2
    Part.LineSegment(App.Vector(75.688837, -33.19079, 0), App.Vector(74.68058, -38.088077, 0)),  # 3
    Part.LineSegment(App.Vector(74.68058, -38.088077, 0), App.Vector(78.417627, -41.409897, 0)),  # 4
    Part.LineSegment(App.Vector(78.417627, -41.409897, 0), App.Vector(83.16293, -39.834429, 0)),  # 5
], False)
sketch8.addConstraint([
    Sketcher.Constraint("Coincident", 0, 2, 1, 1),
    Sketcher.Constraint("Coincident", 1, 2, 2, 1),
    Sketcher.Constraint("Coincident", 2, 2, 3, 1),
    Sketcher.Constraint("Coincident", 3, 2, 4, 1),
    Sketcher.Constraint("Coincident", 4, 2, 5, 1),
    Sketcher.Constraint("Coincident", 5, 2, 0, 1),
    Sketcher.Constraint("Parallel", 0, 3),
    Sketcher.Constraint("Parallel", 1, 4),
    Sketcher.Constraint("Parallel", 2, 5),
    Sketcher.Constraint("Equal", 0, 1),
    Sketcher.Constraint("Equal", 1, 2),
    Sketcher.Constraint("Equal", 2, 3),
    Sketcher.Constraint("Distance", 0, Q("5 mm")),
    Sketcher.Constraint("DistanceX", -1, 1, 1, 2, Q("80.43414 mm")),
    Sketcher.Constraint("DistanceY", 2, 2, -1, 1, Q("33.19079 mm")),
    Sketcher.Constraint("DistanceX", -1, 1, 3, 2, Q("74.68058 mm")),
    Sketcher.Constraint("DistanceX", -1, 1, 5, 2, Q("83.16293 mm")),
    Sketcher.Constraint("DistanceY", 5, 2, -1, 1, Q("39.834429 mm")),
])
pocket6 = body.newObject("PartDesign::Pocket", "Pocket005")
pocket6.Profile = sketch8
pocket6.Length = 5

# Sketch on XY plane
sketch9 = body.newObject("Sketcher::SketchObject", "Sketch008")
sketch9.AttachmentSupport = (doc.getObject("XY_Plane"), [""])
sketch9.MapMode = "FlatFace"
sketch9.AttachmentOffset = App.Placement(App.Vector(0, 0, 17), App.Rotation())
sketch9.addGeometry(Part.Circle(App.Vector(-74.574117, -36.51261, 0), App.Vector(0, 0, 1), 3.25), False)
sketch9.addConstraint([
    Sketcher.Constraint("Diameter", 0, Q("6.5 mm")),
    Sketcher.Constraint("DistanceY", 0, 3, -1, 1, Q("36.51261 mm")),
    Sketcher.Constraint("DistanceX", 0, 3, -1, 1, Q("74.574117 mm")),
])
pocket7 = body.newObject("PartDesign::Pocket", "Pocket006")
pocket7.Profile = sketch9
pocket7.Length = 13

# Sketch on XY plane
sketch10 = body.newObject("Sketcher::SketchObject", "Sketch009")
sketch10.AttachmentSupport = (doc.getObject("XY_Plane"), [""])
sketch10.MapMode = "FlatFace"
sketch10.AttachmentOffset = App.Placement(App.Vector(0, 0, 17), App.Rotation())
sketch10.addGeometry(Part.Circle(App.Vector(-74.574117, 37.48739, 0), App.Vector(0, 0, 1), 3.25), False)
sketch10.addConstraint([
    Sketcher.Constraint("Diameter", 0, Q("6.5 mm")),
    Sketcher.Constraint("DistanceY", -1, 1, 0, 3, Q("37.48739 mm")),
    Sketcher.Constraint("DistanceX", 0, 3, -1, 1, Q("74.574117 mm")),
])
pocket8 = body.newObject("PartDesign::Pocket", "Pocket007")
pocket8.Profile = sketch10
pocket8.Length = 13

# Sketch on XY plane
sketch11 = body.newObject("Sketcher::SketchObject", "Sketch010")
sketch11.AttachmentSupport = (doc.getObject("XY_Plane"), [""])
sketch11.MapMode = "FlatFace"
sketch11.AttachmentOffset = App.Placement(App.Vector(0, 0, 17), App.Rotation())
sketch11.addGeometry(Part.Circle(App.Vector(79.425883, 37.48739, 0), App.Vector(0, 0, 1), 3.25), False)
sketch11.addConstraint([
    Sketcher.Constraint("Diameter", 0, Q("6.5 mm")),
    Sketcher.Constraint("DistanceY", -1, 1, 0, 3, Q("37.48739 mm")),
    Sketcher.Constraint("DistanceX", -1, 1, 0, 3, Q("79.425883 mm")),
])
pocket9 = body.newObject("PartDesign::Pocket", "Pocket008")
pocket9.Profile = sketch11
pocket9.Length = 13

# Sketch on XY plane
sketch12 = body.newObject("Sketcher::SketchObject", "Sketch011")
sketch12.AttachmentSupport = (doc.getObject("XY_Plane"), [""])
sketch12.MapMode = "FlatFace"
sketch12.AttachmentOffset = App.Placement(App.Vector(0, 0, 17), App.Rotation())
sketch12.addGeometry(Part.Circle(App.Vector(79.425883, -36.51261, 0), App.Vector(0, 0, 1), 3.25), False)
sketch12.addConstraint([
    Sketcher.Constraint("Diameter", 0, Q("6.5 mm")),
    Sketcher.Constraint("DistanceY", 0, 3, -1, 1, Q("36.51261 mm")),
    Sketcher.Constraint("DistanceX", -1, 1, 0, 3, Q("79.425883 mm")),
])
pocket10 = body.newObject("PartDesign::Pocket", "Pocket009")
pocket10.Profile = sketch12
pocket10.Length = 13

doc.recompute()
